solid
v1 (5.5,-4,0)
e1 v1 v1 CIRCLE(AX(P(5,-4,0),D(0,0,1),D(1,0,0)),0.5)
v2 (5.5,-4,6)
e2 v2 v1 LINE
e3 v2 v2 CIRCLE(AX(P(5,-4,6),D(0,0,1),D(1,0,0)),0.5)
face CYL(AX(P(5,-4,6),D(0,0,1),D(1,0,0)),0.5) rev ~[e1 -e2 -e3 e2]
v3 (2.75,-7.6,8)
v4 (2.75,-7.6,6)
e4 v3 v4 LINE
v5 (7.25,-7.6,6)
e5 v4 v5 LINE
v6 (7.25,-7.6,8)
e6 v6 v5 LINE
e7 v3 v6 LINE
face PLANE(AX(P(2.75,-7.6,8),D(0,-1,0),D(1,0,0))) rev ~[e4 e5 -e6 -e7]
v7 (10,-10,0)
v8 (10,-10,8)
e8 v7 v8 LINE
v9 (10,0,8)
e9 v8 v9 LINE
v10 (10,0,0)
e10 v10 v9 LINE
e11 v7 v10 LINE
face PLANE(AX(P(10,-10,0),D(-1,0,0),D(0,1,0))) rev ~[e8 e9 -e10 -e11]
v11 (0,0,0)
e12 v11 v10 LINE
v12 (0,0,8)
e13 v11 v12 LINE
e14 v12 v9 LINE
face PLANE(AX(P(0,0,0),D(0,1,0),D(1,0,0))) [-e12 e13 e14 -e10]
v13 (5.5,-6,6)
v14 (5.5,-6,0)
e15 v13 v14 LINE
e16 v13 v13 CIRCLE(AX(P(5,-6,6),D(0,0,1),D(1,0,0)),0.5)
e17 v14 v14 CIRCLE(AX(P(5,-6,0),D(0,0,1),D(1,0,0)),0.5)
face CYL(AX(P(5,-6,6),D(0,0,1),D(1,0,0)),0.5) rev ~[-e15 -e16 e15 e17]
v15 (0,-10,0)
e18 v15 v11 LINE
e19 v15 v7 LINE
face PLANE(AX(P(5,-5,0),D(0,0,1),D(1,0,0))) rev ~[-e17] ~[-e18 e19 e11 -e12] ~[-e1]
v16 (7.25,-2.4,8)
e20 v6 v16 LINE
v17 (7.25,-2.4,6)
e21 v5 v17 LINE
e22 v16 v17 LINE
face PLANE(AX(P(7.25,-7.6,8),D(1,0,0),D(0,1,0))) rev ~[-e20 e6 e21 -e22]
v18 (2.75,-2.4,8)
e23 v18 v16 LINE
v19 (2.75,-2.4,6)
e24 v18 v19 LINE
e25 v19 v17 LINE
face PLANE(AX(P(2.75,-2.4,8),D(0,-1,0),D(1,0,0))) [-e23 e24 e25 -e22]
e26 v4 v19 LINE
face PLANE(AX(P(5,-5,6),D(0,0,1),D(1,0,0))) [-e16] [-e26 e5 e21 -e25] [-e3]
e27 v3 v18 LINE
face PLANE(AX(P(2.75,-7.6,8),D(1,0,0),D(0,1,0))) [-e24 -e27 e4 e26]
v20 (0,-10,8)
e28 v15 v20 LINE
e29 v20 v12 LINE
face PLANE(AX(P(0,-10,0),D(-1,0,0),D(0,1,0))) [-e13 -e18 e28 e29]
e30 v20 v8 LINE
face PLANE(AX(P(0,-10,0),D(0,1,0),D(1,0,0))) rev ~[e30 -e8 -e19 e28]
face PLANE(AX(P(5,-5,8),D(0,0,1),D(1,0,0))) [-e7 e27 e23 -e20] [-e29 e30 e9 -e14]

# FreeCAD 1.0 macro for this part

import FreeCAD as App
import Part
import Sketcher
from FreeCAD import Vector
Q = App.Units.Quantity


def add_polygon(sketch, points):
    """Adds a closed chain of lines whose ends are joined by coincident constraints."""
    first, n = sketch.GeometryCount, len(points)
    for a, b in zip(points, points[1:] + points[:1]):
        sketch.addGeometry(Part.LineSegment(App.Vector(*a, 0), App.Vector(*b, 0)), False)
    for i in range(n):
        sketch.addConstraint(Sketcher.Constraint("Coincident", first + i, 2, first + (i + 1) % n, 1))

doc = App.newDocument("Part")
body = doc.addObject("PartDesign::Body", "Body")

# Sketch on XY plane
sketch1 = body.newObject("Sketcher::SketchObject", "Sketch")
sketch1.AttachmentSupport = (doc.getObject("XY_Plane"), [""])
sketch1.MapMode = "FlatFace"
add_polygon(sketch1, [(0, 0), (0, -10), (10, -10), (10, 0)])  # lines 0-3
sketch1.addConstraint([
    Sketcher.Constraint("Vertical", 0),
    Sketcher.Constraint("Horizontal", 1),
    Sketcher.Constraint("Vertical", 2),
    Sketcher.Constraint("Horizontal", 3),
    Sketcher.Constraint("Coincident", 3, 2, -1, 1),
    Sketcher.Constraint("Equal", 3, 0),
    Sketcher.Constraint("DistanceX", 1, 1, 1, 2, Q("10 mm")),
])
pad1 = body.newObject("PartDesign::Pad", "Pad")
pad1.Profile = sketch1
pad1.Length = 8

# Sketch on XY plane
sketch2 = body.newObject("Sketcher::SketchObject", "Sketch001")
sketch2.AttachmentSupport = (doc.getObject("XY_Plane"), [""])
sketch2.MapMode = "FlatFace"
sketch2.AttachmentOffset = App.Placement(Vector(0, 0, 8), App.Rotation())
add_polygon(sketch2, [(2.8, -2.4), (2.8, -7.6), (7.2, -7.6), (7.2, -2.4)])  # lines 0-3
sketch2.addConstraint([
    Sketcher.Constraint("Vertical", 0),
    Sketcher.Constraint("Horizontal", 1),
    Sketcher.Constraint("Vertical", 2),
    Sketcher.Constraint("Horizontal", 3),
    Sketcher.Constraint("DistanceX", 1, 1, 1, 2, Q("4.5 mm")),
    Sketcher.Constraint("DistanceY", 0, 2, 0, 1, Q("5.2 mm")),
    Sketcher.Constraint("DistanceY", 0, 2, -1, 1, Q("7.6 mm")),
    Sketcher.Constraint("DistanceX", -1, 1, 0, 2, Q("2.75 mm")),
])
pocket1 = body.newObject("PartDesign::Pocket", "Pocket")
pocket1.Profile = sketch2
pocket1.Length = 2

# Sketch on XY plane
sketch3 = body.newObject("Sketcher::SketchObject", "Sketch002")
sketch3.AttachmentSupport = (doc.getObject("XY_Plane"), [""])
sketch3.MapMode = "FlatFace"
sketch3.AttachmentOffset = App.Placement(Vector(0, 0, 6), App.Rotation())
sketch3.addGeometry([
    Part.Circle(Vector(5, -4, 0), Vector(0, 0, 1), 0.5),
    Part.Circle(Vector(5, -6, 0), Vector(0, 0, 1), 0.5),
], False)
sketch3.addConstraint([
    Sketcher.Constraint("Equal", 0, 1),
    Sketcher.Constraint("Vertical", 0, 3, 1, 3),
    Sketcher.Constraint("Diameter", 0, Q("1 mm")),
    Sketcher.Constraint("DistanceX", -1, 1, 0, 3, Q("5 mm")),
    Sketcher.Constraint("DistanceY", 0, 3, -1, 1, Q("4 mm")),
    Sketcher.Constraint("DistanceY", 1, 3, -1, 1, Q("6 mm")),
])
pocket2 = body.newObject("PartDesign::Pocket", "Pocket001")
pocket2.Profile = sketch3
pocket2.Length = 25

doc.recompute()
